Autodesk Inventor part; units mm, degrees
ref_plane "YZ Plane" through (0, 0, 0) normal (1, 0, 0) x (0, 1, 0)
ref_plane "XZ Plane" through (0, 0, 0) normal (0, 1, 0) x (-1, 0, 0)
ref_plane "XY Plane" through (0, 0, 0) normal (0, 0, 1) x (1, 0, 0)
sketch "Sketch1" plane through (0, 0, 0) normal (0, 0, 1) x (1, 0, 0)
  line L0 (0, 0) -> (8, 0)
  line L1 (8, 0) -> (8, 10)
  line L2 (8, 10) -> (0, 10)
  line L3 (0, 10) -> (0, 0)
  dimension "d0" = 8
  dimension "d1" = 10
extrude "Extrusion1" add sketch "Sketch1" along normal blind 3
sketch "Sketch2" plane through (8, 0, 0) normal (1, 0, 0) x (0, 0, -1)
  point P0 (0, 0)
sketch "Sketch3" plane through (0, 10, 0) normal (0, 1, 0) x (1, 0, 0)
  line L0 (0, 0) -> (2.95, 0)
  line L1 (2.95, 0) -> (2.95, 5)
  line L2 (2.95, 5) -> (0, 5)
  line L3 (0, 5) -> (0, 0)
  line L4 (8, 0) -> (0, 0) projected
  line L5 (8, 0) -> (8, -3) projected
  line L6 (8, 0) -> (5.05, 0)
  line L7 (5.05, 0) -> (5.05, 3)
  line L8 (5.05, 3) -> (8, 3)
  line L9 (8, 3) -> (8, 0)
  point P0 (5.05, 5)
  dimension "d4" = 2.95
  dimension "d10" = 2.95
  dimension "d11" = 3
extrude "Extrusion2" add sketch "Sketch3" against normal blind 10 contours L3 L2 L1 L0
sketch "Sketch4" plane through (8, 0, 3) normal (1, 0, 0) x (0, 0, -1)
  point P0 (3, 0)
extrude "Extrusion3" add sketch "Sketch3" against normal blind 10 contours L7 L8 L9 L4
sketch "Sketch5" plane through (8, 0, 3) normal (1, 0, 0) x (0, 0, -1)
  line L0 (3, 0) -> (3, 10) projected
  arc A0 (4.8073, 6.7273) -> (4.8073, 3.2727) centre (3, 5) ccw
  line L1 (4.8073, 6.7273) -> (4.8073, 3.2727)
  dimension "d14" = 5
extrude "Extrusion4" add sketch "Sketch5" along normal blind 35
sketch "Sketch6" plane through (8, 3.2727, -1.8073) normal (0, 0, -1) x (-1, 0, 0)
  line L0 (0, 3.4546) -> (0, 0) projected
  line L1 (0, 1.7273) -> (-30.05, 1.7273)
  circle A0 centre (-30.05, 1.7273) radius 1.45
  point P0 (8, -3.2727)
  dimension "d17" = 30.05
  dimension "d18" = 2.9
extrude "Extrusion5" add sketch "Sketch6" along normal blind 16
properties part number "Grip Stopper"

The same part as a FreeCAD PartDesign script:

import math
import FreeCAD as App
import Part
import Sketcher
from FreeCAD import Vector
Q = App.Units.Quantity

doc = App.newDocument("Part")
body = doc.addObject("PartDesign::Body", "Body")

# Sketch on XY plane
sketch1 = body.newObject("Sketcher::SketchObject", "Sketch")
sketch1.AttachmentSupport = (doc.getObject("XY_Plane"), [""])
sketch1.MapMode = "FlatFace"
sketch1.addGeometry([
    Part.LineSegment(Vector(0, 10, 0), Vector(0, 0, 0)),
    Part.LineSegment(Vector(0, 0, 0), Vector(8, 0, 0)),
    Part.LineSegment(Vector(8, 0, 0), Vector(8, 10, 0)),
    Part.LineSegment(Vector(8, 10, 0), Vector(0, 10, 0)),
], False)
sketch1.addConstraint([
    Sketcher.Constraint("Coincident", 0, 2, 1, 1),
    Sketcher.Constraint("Coincident", 1, 2, 2, 1),
    Sketcher.Constraint("Coincident", 2, 2, 3, 1),
    Sketcher.Constraint("Coincident", 3, 2, 0, 1),
    Sketcher.Constraint("Vertical", 0),
    Sketcher.Constraint("Horizontal", 1),
    Sketcher.Constraint("Vertical", 2),
    Sketcher.Constraint("Horizontal", 3),
    Sketcher.Constraint("Coincident", 0, 2, -1, 1),
    Sketcher.Constraint("DistanceX", 1, 1, 1, 2, Q("8 mm")),
    Sketcher.Constraint("DistanceY", 0, 2, 0, 1, Q("10 mm")),
])
pad1 = body.newObject("PartDesign::Pad", "Pad")
pad1.Profile = sketch1
pad1.Length = 3

# Sketch on XZ plane
sketch2 = body.newObject("Sketcher::SketchObject", "Sketch001")
sketch2.AttachmentSupport = (doc.getObject("XZ_Plane"), [""])
sketch2.MapMode = "FlatFace"
sketch2.AttachmentOffset = App.Placement(Vector(0, 0, -10), App.Rotation())
sketch2.addGeometry([
    Part.LineSegment(Vector(0, -5, 0), Vector(0, 0, 0)),
    Part.LineSegment(Vector(0, 0, 0), Vector(3, 0, 0)),
    Part.LineSegment(Vector(3, 0, 0), Vector(3, -5, 0)),
    Part.LineSegment(Vector(3, -5, 0), Vector(0, -5, 0)),
], False)
sketch2.addConstraint([
    Sketcher.Constraint("Coincident", 0, 2, 1, 1),
    Sketcher.Constraint("Coincident", 1, 2, 2, 1),
    Sketcher.Constraint("Coincident", 2, 2, 3, 1),
    Sketcher.Constraint("Coincident", 3, 2, 0, 1),
    Sketcher.Constraint("Vertical", 0),
    Sketcher.Constraint("Horizontal", 1),
    Sketcher.Constraint("Vertical", 2),
    Sketcher.Constraint("Horizontal", 3),
    Sketcher.Constraint("Coincident", 0, 2, -1, 1),
    Sketcher.Constraint("DistanceX", 1, 1, 1, 2, Q("2.95 mm")),
    Sketcher.Constraint("DistanceY", 0, 1, 0, 2, Q("5 mm")),
])
pad2 = body.newObject("PartDesign::Pad", "Pad001")
pad2.Profile = sketch2
pad2.Length = 10

# Sketch on XZ plane
sketch3 = body.newObject("Sketcher::SketchObject", "Sketch002")
sketch3.AttachmentSupport = (doc.getObject("XZ_Plane"), [""])
sketch3.MapMode = "FlatFace"
sketch3.AttachmentOffset = App.Placement(Vector(0, 0, -10), App.Rotation())
sketch3.addGeometry([
    Part.LineSegment(Vector(5, -3, 0), Vector(5, 0, 0)),
    Part.LineSegment(Vector(5, 0, 0), Vector(8, 0, 0)),
    Part.LineSegment(Vector(8, 0, 0), Vector(8, -3, 0)),
    Part.LineSegment(Vector(8, -3, 0), Vector(5, -3, 0)),
], False)
sketch3.addConstraint([
    Sketcher.Constraint("Coincident", 0, 2, 1, 1),
    Sketcher.Constraint("Coincident", 1, 2, 2, 1),
    Sketcher.Constraint("Coincident", 2, 2, 3, 1),
    Sketcher.Constraint("Coincident", 3, 2, 0, 1),
    Sketcher.Constraint("Vertical", 0),
    Sketcher.Constraint("Horizontal", 1),
    Sketcher.Constraint("Vertical", 2),
    Sketcher.Constraint("Horizontal", 3),
    Sketcher.Constraint("PointOnObject", 0, 2, -1),
    Sketcher.Constraint("DistanceY", 0, 1, 0, 2, Q("3 mm")),
    Sketcher.Constraint("DistanceX", 1, 1, 1, 2, Q("2.95 mm")),
    Sketcher.Constraint("DistanceX", -1, 1, 1, 2, Q("8 mm")),
])
pad3 = body.newObject("PartDesign::Pad", "Pad002")
pad3.Profile = sketch3
pad3.Length = 10

# Sketch on YZ plane
sketch4 = body.newObject("Sketcher::SketchObject", "Sketch003")
sketch4.AttachmentSupport = (doc.getObject("YZ_Plane"), [""])
sketch4.MapMode = "FlatFace"
sketch4.AttachmentOffset = App.Placement(Vector(0, 0, 8), App.Rotation())
sketch4.addGeometry([
    Part.LineSegment(Vector(3.3, -1.8, 0), Vector(6.7, -1.8, 0)),
    Part.ArcOfCircle(Part.Circle(Vector(5, 0, 0), Vector(0, 0, 1), 2.5), math.radians(-46), math.radians(226)),
], False)
sketch4.addConstraint([
    Sketcher.Constraint("Coincident", 0, 1, 1, 2),
    Sketcher.Constraint("Coincident", 1, 1, 0, 2),
    Sketcher.Constraint("Horizontal", 0),
    Sketcher.Constraint("PointOnObject", 1, 3, -1),
    Sketcher.Constraint("Radius", 1, Q("2.5 mm")),
    Sketcher.Constraint("DistanceX", -1, 1, 1, 3, Q("5 mm")),
    Sketcher.Constraint("DistanceX", 0, 1, 0, 2, Q("3.4546 mm")),
])
pad4 = body.newObject("PartDesign::Pad", "Pad003")
pad4.Profile = sketch4
pad4.Length = 35

# Sketch on XY plane
sketch5 = body.newObject("Sketcher::SketchObject", "Sketch004")
sketch5.AttachmentSupport = (doc.getObject("XY_Plane"), [""])
sketch5.MapMode = "FlatFace"
sketch5.AttachmentOffset = App.Placement(Vector(0, 0, -1.8073), App.Rotation())
sketch5.addGeometry(Part.Circle(Vector(38, 5, 0), Vector(0, 0, 1), 1.4), False)
sketch5.addConstraint([
    Sketcher.Constraint("Diameter", 0, Q("2.9 mm")),
    Sketcher.Constraint("DistanceY", -1, 1, 0, 3, Q("5 mm")),
    Sketcher.Constraint("DistanceX", -1, 1, 0, 3, Q("38.05 mm")),
])
pad5 = body.newObject("PartDesign::Pad", "Pad004")
pad5.Profile = sketch5
pad5.Length = 16
pad5.Reversed = True

doc.recompute()
